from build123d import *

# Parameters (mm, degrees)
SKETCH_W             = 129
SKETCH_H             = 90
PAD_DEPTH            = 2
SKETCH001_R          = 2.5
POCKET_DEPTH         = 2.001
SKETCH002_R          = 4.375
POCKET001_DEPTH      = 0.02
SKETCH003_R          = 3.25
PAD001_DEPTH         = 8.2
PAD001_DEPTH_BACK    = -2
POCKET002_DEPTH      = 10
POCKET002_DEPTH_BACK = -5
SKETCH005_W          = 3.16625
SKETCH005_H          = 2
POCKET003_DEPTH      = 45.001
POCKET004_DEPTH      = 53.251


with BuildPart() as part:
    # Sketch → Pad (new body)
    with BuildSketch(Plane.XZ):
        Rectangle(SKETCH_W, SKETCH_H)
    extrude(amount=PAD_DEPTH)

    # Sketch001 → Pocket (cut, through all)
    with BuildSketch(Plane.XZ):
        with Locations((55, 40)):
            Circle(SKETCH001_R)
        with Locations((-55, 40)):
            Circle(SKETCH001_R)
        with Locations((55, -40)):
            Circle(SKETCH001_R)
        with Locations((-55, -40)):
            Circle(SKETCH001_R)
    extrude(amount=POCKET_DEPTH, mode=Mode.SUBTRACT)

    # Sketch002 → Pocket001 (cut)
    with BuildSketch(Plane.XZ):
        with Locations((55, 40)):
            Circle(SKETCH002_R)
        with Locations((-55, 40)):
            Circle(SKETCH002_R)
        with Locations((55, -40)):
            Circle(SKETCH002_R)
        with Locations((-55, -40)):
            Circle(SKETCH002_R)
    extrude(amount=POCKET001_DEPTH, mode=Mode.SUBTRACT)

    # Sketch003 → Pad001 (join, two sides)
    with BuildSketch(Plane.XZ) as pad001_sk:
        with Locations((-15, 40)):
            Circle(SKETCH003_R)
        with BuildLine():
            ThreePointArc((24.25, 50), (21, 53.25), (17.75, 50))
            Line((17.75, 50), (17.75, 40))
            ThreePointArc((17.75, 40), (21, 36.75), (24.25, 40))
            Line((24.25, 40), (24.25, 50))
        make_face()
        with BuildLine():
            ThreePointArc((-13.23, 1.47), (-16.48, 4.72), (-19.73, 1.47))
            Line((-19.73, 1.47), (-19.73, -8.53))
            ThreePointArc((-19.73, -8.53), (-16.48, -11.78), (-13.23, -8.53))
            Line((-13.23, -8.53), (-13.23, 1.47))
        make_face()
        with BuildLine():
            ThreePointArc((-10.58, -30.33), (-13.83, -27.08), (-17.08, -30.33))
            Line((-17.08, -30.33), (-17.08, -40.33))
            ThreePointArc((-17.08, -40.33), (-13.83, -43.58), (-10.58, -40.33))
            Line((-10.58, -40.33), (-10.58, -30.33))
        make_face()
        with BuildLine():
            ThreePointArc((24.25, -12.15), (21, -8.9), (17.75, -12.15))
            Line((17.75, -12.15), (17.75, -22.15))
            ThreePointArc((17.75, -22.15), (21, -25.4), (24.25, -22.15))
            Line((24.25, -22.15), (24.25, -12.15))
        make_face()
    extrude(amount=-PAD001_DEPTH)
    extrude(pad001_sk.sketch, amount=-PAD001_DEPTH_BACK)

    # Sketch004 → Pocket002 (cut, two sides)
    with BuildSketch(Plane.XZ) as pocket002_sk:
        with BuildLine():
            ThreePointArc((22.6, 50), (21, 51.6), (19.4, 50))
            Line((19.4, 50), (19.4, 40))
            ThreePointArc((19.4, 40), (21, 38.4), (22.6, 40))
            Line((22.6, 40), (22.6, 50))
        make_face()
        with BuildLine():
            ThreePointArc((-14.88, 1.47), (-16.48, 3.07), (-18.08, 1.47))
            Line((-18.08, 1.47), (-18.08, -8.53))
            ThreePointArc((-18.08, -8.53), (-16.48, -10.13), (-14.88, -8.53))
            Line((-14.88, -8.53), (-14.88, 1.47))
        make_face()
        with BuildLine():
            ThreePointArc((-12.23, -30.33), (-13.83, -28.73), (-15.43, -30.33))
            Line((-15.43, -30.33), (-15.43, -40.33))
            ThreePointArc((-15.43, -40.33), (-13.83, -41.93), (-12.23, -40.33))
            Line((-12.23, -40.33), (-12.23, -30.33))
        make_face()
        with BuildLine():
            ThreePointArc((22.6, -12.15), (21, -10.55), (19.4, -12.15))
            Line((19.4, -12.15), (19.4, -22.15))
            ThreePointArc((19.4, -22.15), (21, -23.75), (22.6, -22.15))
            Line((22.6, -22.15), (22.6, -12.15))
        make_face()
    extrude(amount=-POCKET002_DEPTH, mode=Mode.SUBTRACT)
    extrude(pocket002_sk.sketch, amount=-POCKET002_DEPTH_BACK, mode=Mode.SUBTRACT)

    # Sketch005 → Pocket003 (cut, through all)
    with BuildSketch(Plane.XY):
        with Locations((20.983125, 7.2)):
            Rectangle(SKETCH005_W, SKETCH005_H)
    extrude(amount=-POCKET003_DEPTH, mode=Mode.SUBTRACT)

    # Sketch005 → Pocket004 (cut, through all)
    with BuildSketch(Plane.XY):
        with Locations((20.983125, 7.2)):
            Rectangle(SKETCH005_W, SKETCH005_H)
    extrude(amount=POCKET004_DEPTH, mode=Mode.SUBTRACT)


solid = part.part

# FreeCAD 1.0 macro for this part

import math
import FreeCAD as App
import Part
import Sketcher
from FreeCAD import Vector
Q = App.Units.Quantity

doc = App.newDocument("Part")
body = doc.addObject("PartDesign::Body", "Body")

sketch1 = doc.addObject("Sketcher::SketchObject", "Sketch")
body.addObject(sketch1)
sketch1.AttachmentSupport = (doc.XZ_Plane, [""])
sketch1.MapMode = "FlatFace"
sketch1.addGeometry(Part.LineSegment(Vector(-64, 45, 0), Vector(-64, -45, 0)), False)
sketch1.addGeometry(Part.LineSegment(Vector(-64, -45, 0), Vector(64, -45, 0)), False)
sketch1.addGeometry(Part.LineSegment(Vector(64, -45, 0), Vector(64, 45, 0)), False)
sketch1.addGeometry(Part.LineSegment(Vector(64, 45, 0), Vector(-64, 45, 0)), False)
sketch1.addConstraint(Sketcher.Constraint("Coincident", 0, 2, 1, 1))
sketch1.addConstraint(Sketcher.Constraint("Coincident", 1, 2, 2, 1))
sketch1.addConstraint(Sketcher.Constraint("Coincident", 2, 2, 3, 1))
sketch1.addConstraint(Sketcher.Constraint("Coincident", 3, 2, 0, 1))
sketch1.addConstraint(Sketcher.Constraint("Vertical", 0))
sketch1.addConstraint(Sketcher.Constraint("Horizontal", 1))
sketch1.addConstraint(Sketcher.Constraint("Vertical", 2))
sketch1.addConstraint(Sketcher.Constraint("Horizontal", 3))
sketch1.addConstraint(Sketcher.Constraint("Symmetric", 0, 2, 2, 2, -1, 1))
sketch1.addConstraint(Sketcher.Constraint("DistanceX", 1, 1, 1, 2, Q("129 mm")))
sketch1.addConstraint(Sketcher.Constraint("DistanceY", 0, 2, 0, 1, Q("90 mm")))
pad1 = doc.addObject("PartDesign::Pad", "Pad")
body.addObject(pad1)
pad1.Profile = sketch1
pad1.Length = 2

sketch2 = doc.addObject("Sketcher::SketchObject", "Sketch001")
body.addObject(sketch2)
sketch2.AttachmentSupport = (doc.XZ_Plane, [""])
sketch2.MapMode = "FlatFace"
sketch2.addGeometry(Part.Circle(Vector(55, 40, 0), Vector(0, 0, 1), 2.5), False)
sketch2.addGeometry(Part.Circle(Vector(-55, 40, 0), Vector(0, 0, 1), 2.5), False)
sketch2.addGeometry(Part.Circle(Vector(55, -40, 0), Vector(0, 0, 1), 2.5), False)
sketch2.addGeometry(Part.Circle(Vector(-55, -40, 0), Vector(0, 0, 1), 2.5), False)
sketch2.addConstraint(Sketcher.Constraint("Equal", 0, 1))
sketch2.addConstraint(Sketcher.Constraint("Equal", 1, 2))
sketch2.addConstraint(Sketcher.Constraint("Equal", 2, 3))
sketch2.addConstraint(Sketcher.Constraint("Symmetric", 1, 3, 2, 3, -1, 1))
sketch2.addConstraint(Sketcher.Constraint("Symmetric", 0, 3, 3, 3, -1, 1))
sketch2.addConstraint(Sketcher.Constraint("Symmetric", 0, 3, 1, 3, -2))
sketch2.addConstraint(Sketcher.Constraint("Diameter", 0, Q("5 mm")))
sketch2.addConstraint(Sketcher.Constraint("DistanceX", -1, 1, 0, 3, Q("55 mm")))
sketch2.addConstraint(Sketcher.Constraint("DistanceY", -1, 1, 0, 3, Q("40 mm")))
pocket1 = doc.addObject("PartDesign::Pocket", "Pocket")
body.addObject(pocket1)
pocket1.Profile = sketch2
pocket1.Type = "ThroughAll"
pocket1.Reversed = True

sketch3 = doc.addObject("Sketcher::SketchObject", "Sketch002")
body.addObject(sketch3)
sketch3.AttachmentSupport = (doc.XZ_Plane, [""])
sketch3.MapMode = "FlatFace"
sketch3.addGeometry(Part.Circle(Vector(55, 40, 0), Vector(0, 0, 1), 4.4), False)
sketch3.addGeometry(Part.Circle(Vector(-55, 40, 0), Vector(0, 0, 1), 4.4), False)
sketch3.addGeometry(Part.Circle(Vector(55, -40, 0), Vector(0, 0, 1), 4.4), False)
sketch3.addGeometry(Part.Circle(Vector(-55, -40, 0), Vector(0, 0, 1), 4.4), False)
sketch3.addConstraint(Sketcher.Constraint("Equal", 0, 1))
sketch3.addConstraint(Sketcher.Constraint("Equal", 1, 2))
sketch3.addConstraint(Sketcher.Constraint("Equal", 2, 3))
sketch3.addConstraint(Sketcher.Constraint("Symmetric", 1, 3, 2, 3, -1, 1))
sketch3.addConstraint(Sketcher.Constraint("Symmetric", 0, 3, 3, 3, -1, 1))
sketch3.addConstraint(Sketcher.Constraint("Symmetric", 0, 3, 1, 3, -2))
sketch3.addConstraint(Sketcher.Constraint("Diameter", 0, Q("8.75 mm")))
sketch3.addConstraint(Sketcher.Constraint("DistanceX", -1, 1, 0, 3, Q("55 mm")))
sketch3.addConstraint(Sketcher.Constraint("DistanceY", -1, 1, 0, 3, Q("40 mm")))
pocket2 = doc.addObject("PartDesign::Pocket", "Pocket001")
body.addObject(pocket2)
pocket2.Profile = sketch3
pocket2.Length = 0.02
pocket2.Reversed = True

sketch4 = doc.addObject("Sketcher::SketchObject", "Sketch003")
body.addObject(sketch4)
sketch4.AttachmentSupport = (doc.XZ_Plane, [""])
sketch4.MapMode = "FlatFace"
sketch4.addGeometry(Part.Circle(Vector(-15, 40, 0), Vector(0, 0, 1), 3.2), False)
sketch4.addGeometry(Part.ArcOfCircle(Part.Circle(Vector(21, 50, 0), Vector(0, 0, 1), 3.2), math.radians(0), math.radians(180)), False)
sketch4.addGeometry(Part.LineSegment(Vector(17.8, 50, 0), Vector(17.8, 40, 0)), False)
sketch4.addGeometry(Part.ArcOfCircle(Part.Circle(Vector(21, 40, 0), Vector(0, 0, 1), 3.2), math.radians(180), math.radians(360)), False)
sketch4.addGeometry(Part.LineSegment(Vector(24.2, 40, 0), Vector(24.2, 50, 0)), False)
sketch4.addGeometry(Part.ArcOfCircle(Part.Circle(Vector(-16.5, 1.5, 0), Vector(0, 0, 1), 3.2), math.radians(0), math.radians(180)), False)
sketch4.addGeometry(Part.LineSegment(Vector(-19.7, 1.5, 0), Vector(-19.7, -8.5, 0)), False)
sketch4.addGeometry(Part.ArcOfCircle(Part.Circle(Vector(-16.5, -8.5, 0), Vector(0, 0, 1), 3.2), math.radians(180), math.radians(360)), False)
sketch4.addGeometry(Part.LineSegment(Vector(-13.2, -8.5, 0), Vector(-13.2, 1.5, 0)), False)
sketch4.addGeometry(Part.ArcOfCircle(Part.Circle(Vector(-13.8, -30.3, 0), Vector(0, 0, 1), 3.2), math.radians(0), math.radians(180)), False)
sketch4.addGeometry(Part.LineSegment(Vector(-17.1, -30.3, 0), Vector(-17.1, -40.3, 0)), False)
sketch4.addGeometry(Part.ArcOfCircle(Part.Circle(Vector(-13.8, -40.3, 0), Vector(0, 0, 1), 3.2), math.radians(180), math.radians(360)), False)
sketch4.addGeometry(Part.LineSegment(Vector(-10.6, -40.3, 0), Vector(-10.6, -30.3, 0)), False)
sketch4.addGeometry(Part.ArcOfCircle(Part.Circle(Vector(21, -12.2, 0), Vector(0, 0, 1), 3.2), math.radians(0), math.radians(180)), False)
sketch4.addGeometry(Part.LineSegment(Vector(17.8, -12.2, 0), Vector(17.8, -22.1, 0)), False)
sketch4.addGeometry(Part.ArcOfCircle(Part.Circle(Vector(21, -22.1, 0), Vector(0, 0, 1), 3.2), math.radians(180), math.radians(360)), False)
sketch4.addGeometry(Part.LineSegment(Vector(24.2, -22.1, 0), Vector(24.2, -12.2, 0)), False)
sketch4.addConstraint(Sketcher.Constraint("Tangent", 1, 2, 2, 1))
sketch4.addConstraint(Sketcher.Constraint("Tangent", 2, 2, 3, 1))
sketch4.addConstraint(Sketcher.Constraint("Tangent", 3, 2, 4, 1))
sketch4.addConstraint(Sketcher.Constraint("Tangent", 4, 2, 1, 1))
sketch4.addConstraint(Sketcher.Constraint("Tangent", 5, 2, 6, 1))
sketch4.addConstraint(Sketcher.Constraint("Tangent", 6, 2, 7, 1))
sketch4.addConstraint(Sketcher.Constraint("Tangent", 7, 2, 8, 1))
sketch4.addConstraint(Sketcher.Constraint("Tangent", 8, 2, 5, 1))
sketch4.addConstraint(Sketcher.Constraint("Tangent", 9, 2, 10, 1))
sketch4.addConstraint(Sketcher.Constraint("Tangent", 10, 2, 11, 1))
sketch4.addConstraint(Sketcher.Constraint("Tangent", 11, 2, 12, 1))
sketch4.addConstraint(Sketcher.Constraint("Tangent", 12, 2, 9, 1))
sketch4.addConstraint(Sketcher.Constraint("Tangent", 13, 2, 14, 1))
sketch4.addConstraint(Sketcher.Constraint("Tangent", 14, 2, 15, 1))
sketch4.addConstraint(Sketcher.Constraint("Tangent", 15, 2, 16, 1))
sketch4.addConstraint(Sketcher.Constraint("Tangent", 16, 2, 13, 1))
sketch4.addConstraint(Sketcher.Constraint("Vertical", 2))
sketch4.addConstraint(Sketcher.Constraint("Vertical", 4))
sketch4.addConstraint(Sketcher.Constraint("Vertical", 6))
sketch4.addConstraint(Sketcher.Constraint("Vertical", 8))
sketch4.addConstraint(Sketcher.Constraint("Vertical", 10))
sketch4.addConstraint(Sketcher.Constraint("Vertical", 12))
sketch4.addConstraint(Sketcher.Constraint("Vertical", 14))
sketch4.addConstraint(Sketcher.Constraint("Vertical", 16))
sketch4.addConstraint(Sketcher.Constraint("Equal", 0, 1))
sketch4.addConstraint(Sketcher.Constraint("Equal", 3, 5))
sketch4.addConstraint(Sketcher.Constraint("Equal", 7, 9))
sketch4.addConstraint(Sketcher.Constraint("Equal", 11, 13))
sketch4.addConstraint(Sketcher.Constraint("Horizontal", 0, 3, 3, 3))
sketch4.addConstraint(Sketcher.Constraint("Vertical", 3, 3, 13, 3))
sketch4.addConstraint(Sketcher.Constraint("Equal", 4, 6))
sketch4.addConstraint(Sketcher.Constraint("Equal", 8, 10))
sketch4.addConstraint(Sketcher.Constraint("Equal", 12, 14))
sketch4.addConstraint(Sketcher.Constraint("Diameter", 0, Q("6.5 mm")))
sketch4.addConstraint(Sketcher.Constraint("DistanceY", 2, 2, 2, 1, Q("10 mm")))
sketch4.addConstraint(Sketcher.Constraint("DistanceX", 0, 3, -1, 1, Q("15 mm")))
sketch4.addConstraint(Sketcher.Constraint("DistanceY", -1, 1, 0, 3, Q("40 mm")))
sketch4.addConstraint(Sketcher.Constraint("DistanceX", -1, 1, 1, 3, Q("21 mm")))
sketch4.addConstraint(Sketcher.Constraint("DistanceY", 9, 3, 7, 3, Q("21.8 mm")))
sketch4.addConstraint(Sketcher.Constraint("DistanceX", 5, 2, 9, 3, Q("5.9 mm")))
sketch4.addConstraint(Sketcher.Constraint("DistanceX", 5, 3, -1, 1, Q("16.48 mm")))
sketch4.addConstraint(Sketcher.Constraint("DistanceY", -1, 1, 5, 3, Q("1.47 mm")))
sketch4.addConstraint(Sketcher.Constraint("DistanceY", 13, 3, -1, 1, Q("12.15 mm")))
pad2 = doc.addObject("PartDesign::Pad", "Pad001")
body.addObject(pad2)
pad2.Profile = sketch4
pad2.Type = "TwoLengths"
pad2.Length = 8.2
pad2.Length2 = 2
pad2.Reversed = True

sketch5 = doc.addObject("Sketcher::SketchObject", "Sketch004")
body.addObject(sketch5)
sketch5.AttachmentSupport = (doc.XZ_Plane, [""])
sketch5.MapMode = "FlatFace"
sketch5.addGeometry(Part.ArcOfCircle(Part.Circle(Vector(21, 50, 0), Vector(0, 0, 1), 1.6), math.radians(0), math.radians(180)), False)
sketch5.addGeometry(Part.LineSegment(Vector(19.4, 50, 0), Vector(19.4, 40, 0)), False)
sketch5.addGeometry(Part.ArcOfCircle(Part.Circle(Vector(21, 40, 0), Vector(0, 0, 1), 1.6), math.radians(180), math.radians(360)), False)
sketch5.addGeometry(Part.LineSegment(Vector(22.6, 40, 0), Vector(22.6, 50, 0)), False)
sketch5.addGeometry(Part.ArcOfCircle(Part.Circle(Vector(-16.5, 1.5, 0), Vector(0, 0, 1), 1.6), math.radians(0), math.radians(180)), False)
sketch5.addGeometry(Part.LineSegment(Vector(-18.1, 1.5, 0), Vector(-18.1, -8.5, 0)), False)
sketch5.addGeometry(Part.ArcOfCircle(Part.Circle(Vector(-16.5, -8.5, 0), Vector(0, 0, 1), 1.6), math.radians(180), math.radians(360)), False)
sketch5.addGeometry(Part.LineSegment(Vector(-14.9, -8.5, 0), Vector(-14.9, 1.5, 0)), False)
sketch5.addGeometry(Part.ArcOfCircle(Part.Circle(Vector(-13.8, -30.3, 0), Vector(0, 0, 1), 1.6), math.radians(0), math.radians(180)), False)
sketch5.addGeometry(Part.LineSegment(Vector(-15.4, -30.3, 0), Vector(-15.4, -40.3, 0)), False)
sketch5.addGeometry(Part.ArcOfCircle(Part.Circle(Vector(-13.8, -40.3, 0), Vector(0, 0, 1), 1.6), math.radians(180), math.radians(360)), False)
sketch5.addGeometry(Part.LineSegment(Vector(-12.2, -40.3, 0), Vector(-12.2, -30.3, 0)), False)
sketch5.addGeometry(Part.ArcOfCircle(Part.Circle(Vector(21, -12.2, 0), Vector(0, 0, 1), 1.6), math.radians(0), math.radians(180)), False)
sketch5.addGeometry(Part.LineSegment(Vector(19.4, -12.2, 0), Vector(19.4, -22.1, 0)), False)
sketch5.addGeometry(Part.ArcOfCircle(Part.Circle(Vector(21, -22.1, 0), Vector(0, 0, 1), 1.6), math.radians(180), math.radians(360)), False)
sketch5.addGeometry(Part.LineSegment(Vector(22.6, -22.1, 0), Vector(22.6, -12.2, 0)), False)
sketch5.addConstraint(Sketcher.Constraint("Tangent", 0, 2, 1, 1))
sketch5.addConstraint(Sketcher.Constraint("Tangent", 1, 2, 2, 1))
sketch5.addConstraint(Sketcher.Constraint("Tangent", 2, 2, 3, 1))
sketch5.addConstraint(Sketcher.Constraint("Tangent", 3, 2, 0, 1))
sketch5.addConstraint(Sketcher.Constraint("Tangent", 4, 2, 5, 1))
sketch5.addConstraint(Sketcher.Constraint("Tangent", 5, 2, 6, 1))
sketch5.addConstraint(Sketcher.Constraint("Tangent", 6, 2, 7, 1))
sketch5.addConstraint(Sketcher.Constraint("Tangent", 7, 2, 4, 1))
sketch5.addConstraint(Sketcher.Constraint("Tangent", 8, 2, 9, 1))
sketch5.addConstraint(Sketcher.Constraint("Tangent", 9, 2, 10, 1))
sketch5.addConstraint(Sketcher.Constraint("Tangent", 10, 2, 11, 1))
sketch5.addConstraint(Sketcher.Constraint("Tangent", 11, 2, 8, 1))
sketch5.addConstraint(Sketcher.Constraint("Tangent", 12, 2, 13, 1))
sketch5.addConstraint(Sketcher.Constraint("Tangent", 13, 2, 14, 1))
sketch5.addConstraint(Sketcher.Constraint("Tangent", 14, 2, 15, 1))
sketch5.addConstraint(Sketcher.Constraint("Tangent", 15, 2, 12, 1))
sketch5.addConstraint(Sketcher.Constraint("Vertical", 1))
sketch5.addConstraint(Sketcher.Constraint("Vertical", 3))
sketch5.addConstraint(Sketcher.Constraint("Vertical", 5))
sketch5.addConstraint(Sketcher.Constraint("Vertical", 7))
sketch5.addConstraint(Sketcher.Constraint("Vertical", 9))
sketch5.addConstraint(Sketcher.Constraint("Vertical", 11))
sketch5.addConstraint(Sketcher.Constraint("Vertical", 13))
sketch5.addConstraint(Sketcher.Constraint("Vertical", 15))
sketch5.addConstraint(Sketcher.Constraint("Equal", 2, 4))
sketch5.addConstraint(Sketcher.Constraint("Equal", 6, 8))
sketch5.addConstraint(Sketcher.Constraint("Equal", 10, 12))
sketch5.addConstraint(Sketcher.Constraint("Vertical", 2, 3, 12, 3))
sketch5.addConstraint(Sketcher.Constraint("Equal", 3, 5))
sketch5.addConstraint(Sketcher.Constraint("Equal", 7, 9))
sketch5.addConstraint(Sketcher.Constraint("Equal", 11, 13))
sketch5.addConstraint(Sketcher.Constraint("Radius", 0, Q("1.6 mm")))
sketch5.addConstraint(Sketcher.Constraint("DistanceY", 1, 2, 1, 1, Q("10 mm")))
sketch5.addConstraint(Sketcher.Constraint("DistanceX", -1, 1, 0, 3, Q("21 mm")))
sketch5.addConstraint(Sketcher.Constraint("DistanceY", -1, 1, 0, 3, Q("50 mm")))
sketch5.addConstraint(Sketcher.Constraint("DistanceY", 8, 3, 6, 3, Q("21.8 mm")))
sketch5.addConstraint(Sketcher.Constraint("DistanceX", 4, 3, -1, 1, Q("16.48 mm")))
sketch5.addConstraint(Sketcher.Constraint("DistanceY", -1, 1, 4, 3, Q("1.47 mm")))
sketch5.addConstraint(Sketcher.Constraint("DistanceX", 8, 3, -1, 1, Q("13.83 mm")))
sketch5.addConstraint(Sketcher.Constraint("DistanceY", 12, 3, -1, 1, Q("12.15 mm")))
pocket3 = doc.addObject("PartDesign::Pocket", "Pocket002")
body.addObject(pocket3)
pocket3.Profile = sketch5
pocket3.Type = "ThroughAll"
pocket3.Midplane = True

sketch6 = doc.addObject("Sketcher::SketchObject", "Sketch005")
body.addObject(sketch6)
sketch6.AttachmentSupport = (doc.XY_Plane, [""])
sketch6.MapMode = "FlatFace"
sketch6.addGeometry(Part.LineSegment(Vector(19.4, 8.2, 0), Vector(19.4, 6.2, 0)), False)
sketch6.addGeometry(Part.LineSegment(Vector(19.4, 6.2, 0), Vector(22.6, 6.2, 0)), False)
sketch6.addGeometry(Part.LineSegment(Vector(22.6, 6.2, 0), Vector(22.6, 8.2, 0)), False)
sketch6.addGeometry(Part.LineSegment(Vector(22.6, 8.2, 0), Vector(19.4, 8.2, 0)), False)
sketch6.addConstraint(Sketcher.Constraint("Coincident", 0, 2, 1, 1))
sketch6.addConstraint(Sketcher.Constraint("Coincident", 1, 2, 2, 1))
sketch6.addConstraint(Sketcher.Constraint("Coincident", 2, 2, 3, 1))
sketch6.addConstraint(Sketcher.Constraint("Coincident", 3, 2, 0, 1))
sketch6.addConstraint(Sketcher.Constraint("Vertical", 0))
sketch6.addConstraint(Sketcher.Constraint("Horizontal", 1))
sketch6.addConstraint(Sketcher.Constraint("Vertical", 2))
sketch6.addConstraint(Sketcher.Constraint("Horizontal", 3))
sketch6.addConstraint(Sketcher.Constraint("DistanceY", 0, 2, 0, 1, Q("2 mm")))
sketch6.addConstraint(Sketcher.Constraint("DistanceX", -1, 1, 0, 2, Q("19.4 mm")))
sketch6.addConstraint(Sketcher.Constraint("DistanceY", -1, 1, 0, 2, Q("6.2 mm")))
sketch6.addConstraint(Sketcher.Constraint("DistanceX", 1, 1, 1, 2, Q("3.16625 mm")))
pocket4 = doc.addObject("PartDesign::Pocket", "Pocket003")
body.addObject(pocket4)
pocket4.Profile = sketch6
pocket4.Type = "ThroughAll"

sketch7 = doc.addObject("Sketcher::SketchObject", "Sketch006")
body.addObject(sketch7)
sketch7.AttachmentSupport = (doc.XY_Plane, [""])
sketch7.MapMode = "FlatFace"
sketch7.addGeometry(Part.LineSegment(Vector(19.4, 8.2, 0), Vector(19.4, 6.2, 0)), False)
sketch7.addGeometry(Part.LineSegment(Vector(19.4, 6.2, 0), Vector(22.6, 6.2, 0)), False)
sketch7.addGeometry(Part.LineSegment(Vector(22.6, 6.2, 0), Vector(22.6, 8.2, 0)), False)
sketch7.addGeometry(Part.LineSegment(Vector(22.6, 8.2, 0), Vector(19.4, 8.2, 0)), False)
sketch7.addConstraint(Sketcher.Constraint("Coincident", 0, 2, 1, 1))
sketch7.addConstraint(Sketcher.Constraint("Coincident", 1, 2, 2, 1))
sketch7.addConstraint(Sketcher.Constraint("Coincident", 2, 2, 3, 1))
sketch7.addConstraint(Sketcher.Constraint("Coincident", 3, 2, 0, 1))
sketch7.addConstraint(Sketcher.Constraint("Vertical", 0))
sketch7.addConstraint(Sketcher.Constraint("Horizontal", 1))
sketch7.addConstraint(Sketcher.Constraint("Vertical", 2))
sketch7.addConstraint(Sketcher.Constraint("Horizontal", 3))
sketch7.addConstraint(Sketcher.Constraint("DistanceY", 0, 2, 0, 1, Q("2 mm")))
sketch7.addConstraint(Sketcher.Constraint("DistanceX", -1, 1, 0, 2, Q("19.4 mm")))
sketch7.addConstraint(Sketcher.Constraint("DistanceY", -1, 1, 0, 2, Q("6.2 mm")))
sketch7.addConstraint(Sketcher.Constraint("DistanceX", 1, 1, 1, 2, Q("3.16625 mm")))
pocket5 = doc.addObject("PartDesign::Pocket", "Pocket004")
body.addObject(pocket5)
pocket5.Profile = sketch7
pocket5.Type = "ThroughAll"
pocket5.Reversed = True

doc.recompute()
